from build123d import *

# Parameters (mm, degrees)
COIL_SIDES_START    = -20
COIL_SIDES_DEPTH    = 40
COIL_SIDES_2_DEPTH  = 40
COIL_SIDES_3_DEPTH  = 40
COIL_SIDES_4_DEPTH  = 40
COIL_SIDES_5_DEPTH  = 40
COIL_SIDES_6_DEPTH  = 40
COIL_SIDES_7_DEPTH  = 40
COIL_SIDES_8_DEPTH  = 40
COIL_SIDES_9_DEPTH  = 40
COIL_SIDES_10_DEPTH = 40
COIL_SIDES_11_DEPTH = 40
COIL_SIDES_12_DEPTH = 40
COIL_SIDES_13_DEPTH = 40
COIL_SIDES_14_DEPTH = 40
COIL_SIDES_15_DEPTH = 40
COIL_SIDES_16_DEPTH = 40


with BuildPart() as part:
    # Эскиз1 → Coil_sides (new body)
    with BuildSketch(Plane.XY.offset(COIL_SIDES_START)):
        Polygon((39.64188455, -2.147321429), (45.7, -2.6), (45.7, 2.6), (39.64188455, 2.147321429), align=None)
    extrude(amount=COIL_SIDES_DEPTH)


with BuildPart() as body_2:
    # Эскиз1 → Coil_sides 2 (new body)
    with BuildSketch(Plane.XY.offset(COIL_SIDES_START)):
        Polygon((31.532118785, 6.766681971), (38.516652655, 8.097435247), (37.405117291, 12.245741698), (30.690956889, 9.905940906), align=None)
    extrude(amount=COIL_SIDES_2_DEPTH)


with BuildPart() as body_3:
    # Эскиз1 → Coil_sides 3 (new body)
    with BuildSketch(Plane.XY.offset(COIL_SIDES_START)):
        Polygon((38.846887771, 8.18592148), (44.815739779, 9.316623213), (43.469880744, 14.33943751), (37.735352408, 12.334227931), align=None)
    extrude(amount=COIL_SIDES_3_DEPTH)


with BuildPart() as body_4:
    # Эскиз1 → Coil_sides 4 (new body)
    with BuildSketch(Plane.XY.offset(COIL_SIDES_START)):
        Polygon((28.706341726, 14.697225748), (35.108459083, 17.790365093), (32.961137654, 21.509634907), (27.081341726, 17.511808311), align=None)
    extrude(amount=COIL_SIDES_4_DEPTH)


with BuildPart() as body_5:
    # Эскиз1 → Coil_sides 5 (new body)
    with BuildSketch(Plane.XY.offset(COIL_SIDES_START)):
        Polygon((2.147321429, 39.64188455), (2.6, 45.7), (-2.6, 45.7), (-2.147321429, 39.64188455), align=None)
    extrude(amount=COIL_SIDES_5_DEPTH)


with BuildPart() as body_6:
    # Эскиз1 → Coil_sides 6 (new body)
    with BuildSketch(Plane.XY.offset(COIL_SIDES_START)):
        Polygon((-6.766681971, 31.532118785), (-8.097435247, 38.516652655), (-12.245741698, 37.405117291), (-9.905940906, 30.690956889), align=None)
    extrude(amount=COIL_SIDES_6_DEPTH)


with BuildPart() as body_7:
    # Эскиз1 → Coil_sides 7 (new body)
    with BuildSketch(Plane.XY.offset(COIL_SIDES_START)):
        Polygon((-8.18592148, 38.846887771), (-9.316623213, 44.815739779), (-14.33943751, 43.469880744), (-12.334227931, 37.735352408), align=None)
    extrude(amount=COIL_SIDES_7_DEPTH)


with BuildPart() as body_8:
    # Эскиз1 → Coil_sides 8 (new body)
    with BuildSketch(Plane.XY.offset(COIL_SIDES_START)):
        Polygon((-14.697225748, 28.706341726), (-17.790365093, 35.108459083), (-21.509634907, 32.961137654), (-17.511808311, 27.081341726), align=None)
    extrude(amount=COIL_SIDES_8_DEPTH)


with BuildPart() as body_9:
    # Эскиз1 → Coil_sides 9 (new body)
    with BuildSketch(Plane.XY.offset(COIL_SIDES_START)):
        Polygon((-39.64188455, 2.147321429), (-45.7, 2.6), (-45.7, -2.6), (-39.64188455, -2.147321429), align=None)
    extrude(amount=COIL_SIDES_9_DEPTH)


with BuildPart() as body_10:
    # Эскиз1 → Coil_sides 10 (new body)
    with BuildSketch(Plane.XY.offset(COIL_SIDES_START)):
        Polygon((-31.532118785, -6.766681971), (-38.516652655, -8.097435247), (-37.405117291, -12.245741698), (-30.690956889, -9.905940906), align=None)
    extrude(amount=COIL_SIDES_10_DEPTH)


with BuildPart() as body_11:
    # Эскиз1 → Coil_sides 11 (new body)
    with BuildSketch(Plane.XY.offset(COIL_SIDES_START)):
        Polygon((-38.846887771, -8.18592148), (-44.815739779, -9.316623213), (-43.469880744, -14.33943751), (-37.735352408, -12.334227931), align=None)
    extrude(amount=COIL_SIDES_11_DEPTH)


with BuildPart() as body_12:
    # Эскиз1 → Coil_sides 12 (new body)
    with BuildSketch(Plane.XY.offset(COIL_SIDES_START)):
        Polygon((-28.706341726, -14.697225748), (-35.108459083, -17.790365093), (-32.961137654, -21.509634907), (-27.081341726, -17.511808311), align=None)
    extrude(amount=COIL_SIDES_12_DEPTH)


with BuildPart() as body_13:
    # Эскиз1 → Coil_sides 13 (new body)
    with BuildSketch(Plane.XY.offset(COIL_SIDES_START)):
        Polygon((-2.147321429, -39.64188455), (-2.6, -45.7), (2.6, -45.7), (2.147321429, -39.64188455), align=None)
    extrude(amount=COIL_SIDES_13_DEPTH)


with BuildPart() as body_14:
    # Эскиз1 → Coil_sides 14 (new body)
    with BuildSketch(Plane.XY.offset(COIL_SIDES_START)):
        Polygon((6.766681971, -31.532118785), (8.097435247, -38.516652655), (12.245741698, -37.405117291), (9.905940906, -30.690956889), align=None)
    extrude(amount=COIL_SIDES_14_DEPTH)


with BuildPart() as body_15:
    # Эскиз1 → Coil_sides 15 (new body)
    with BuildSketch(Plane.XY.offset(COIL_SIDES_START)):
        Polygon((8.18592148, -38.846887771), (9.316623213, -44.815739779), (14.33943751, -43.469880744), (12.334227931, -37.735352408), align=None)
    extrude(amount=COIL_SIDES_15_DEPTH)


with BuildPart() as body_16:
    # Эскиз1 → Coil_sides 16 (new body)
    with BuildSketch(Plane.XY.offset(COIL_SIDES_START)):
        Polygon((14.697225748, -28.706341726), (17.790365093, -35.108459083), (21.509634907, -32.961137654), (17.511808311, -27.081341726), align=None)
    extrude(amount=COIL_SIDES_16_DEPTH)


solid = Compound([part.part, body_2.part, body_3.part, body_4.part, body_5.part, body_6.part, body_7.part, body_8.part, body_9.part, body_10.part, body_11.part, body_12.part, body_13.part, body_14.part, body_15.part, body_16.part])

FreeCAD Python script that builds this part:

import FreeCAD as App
import Part
import Sketcher
from FreeCAD import Vector
Q = App.Units.Quantity


def add_polygon(sketch, points):
    """Adds a closed chain of lines whose ends are joined by coincident constraints."""
    first, n = sketch.GeometryCount, len(points)
    for a, b in zip(points, points[1:] + points[:1]):
        sketch.addGeometry(Part.LineSegment(App.Vector(*a, 0), App.Vector(*b, 0)), False)
    for i in range(n):
        sketch.addConstraint(Sketcher.Constraint("Coincident", first + i, 2, first + (i + 1) % n, 1))

doc = App.newDocument("Part")
params = doc.addObject("Spreadsheet::Sheet", "Params")
for row, (alias, value) in enumerate([
    ("sketch1_height", "5.2 mm"),
    ("pad1_length", "40 mm"),
    ("sketch2_length", "3.25 mm"),
    ("pad2_length", "40 mm"),
    ("sketch3_length", "5.2 mm"),
    ("pad3_length", "40 mm"),
    ("sketch4_length", "3.25 mm"),
    ("pad4_length", "40 mm"),
    ("sketch5_width", "5.2 mm"),
    ("pad5_length", "40 mm"),
    ("sketch6_length", "3.25 mm"),
    ("pad6_length", "40 mm"),
    ("sketch7_length", "5.2 mm"),
    ("pad7_length", "40 mm"),
    ("sketch8_length", "3.25 mm"),
    ("pad8_length", "40 mm"),
    ("sketch9_height", "5.2 mm"),
    ("pad9_length", "40 mm"),
    ("sketch10_length", "3.25 mm"),
    ("pad10_length", "40 mm"),
    ("sketch11_length", "5.2 mm"),
    ("pad11_length", "40 mm"),
    ("sketch12_length", "3.25 mm"),
    ("pad12_length", "40 mm"),
    ("sketch13_width", "5.2 mm"),
    ("pad13_length", "40 mm"),
    ("sketch14_length", "3.25 mm"),
    ("pad14_length", "40 mm"),
    ("sketch15_length", "5.2 mm"),
    ("pad15_length", "40 mm"),
    ("sketch16_length", "3.25 mm"),
    ("pad16_length", "40 mm"),
], start=1):
    params.set(f"A{row}", alias)
    params.set(f"B{row}", "=" + value)
    params.setAlias(f"B{row}", alias)

body = doc.addObject("PartDesign::Body", "Body")

sketch1 = doc.addObject("Sketcher::SketchObject", "Sketch")
body.addObject(sketch1)
sketch1.AttachmentSupport = (doc.XY_Plane, [""])
sketch1.MapMode = "FlatFace"
sketch1.AttachmentOffset = App.Placement(Vector(0, 0, -20), App.Rotation())
add_polygon(sketch1, [(39.6, -2.1), (45.7, -2.6), (45.7, 2.6), (39.6, 2.1)])
sketch1.addConstraint([
    Sketcher.Constraint("Vertical", 1),
    Sketcher.Constraint("Vertical", 3),
    Sketcher.Constraint("Equal", 0, 2),
    Sketcher.Constraint("DistanceY", 1, 1, 1, 2, 5.2),
    Sketcher.Constraint("DistanceX", -1, 1, 0, 2, 45.7),
    Sketcher.Constraint("DistanceY", 0, 2, -1, 1, 2.6),
    Sketcher.Constraint("DistanceY", 3, 2, 3, 1, 4.294643),
    Sketcher.Constraint("Distance", 0, 6.075005),
])
sketch1.setExpression("Constraints[7]", "Params.sketch1_height")
pad1 = doc.addObject("PartDesign::Pad", "Pad")
body.addObject(pad1)
pad1.Profile = sketch1
pad1.setExpression("Length", "Params.pad1_length")
body2 = doc.addObject("PartDesign::Body", "Body001")

sketch2 = doc.addObject("Sketcher::SketchObject", "Sketch001")
body2.addObject(sketch2)
sketch2.AttachmentSupport = (doc.getObject("XY_Plane001"), [""])
sketch2.MapMode = "FlatFace"
sketch2.AttachmentOffset = App.Placement(Vector(0, 0, -20), App.Rotation())
add_polygon(sketch2, [(31.5, 6.8), (38.5, 8.1), (37.4, 12.2), (30.7, 9.9)])
sketch2.addConstraint([
    Sketcher.Constraint("Parallel", 1, 3),
    Sketcher.Constraint("Equal", 0, 2),
    Sketcher.Constraint("Angle", 1, Q("105 deg")),
    Sketcher.Constraint("Distance", 3, 3.25),
    Sketcher.Constraint("DistanceX", 3, 2, 1, 2, 5.872999),
    Sketcher.Constraint("DistanceY", 2, 2, 1, 2, 2.339801),
    Sketcher.Constraint("DistanceY", -1, 1, 1, 2, 12.245742),
    Sketcher.Constraint("DistanceX", -1, 1, 3, 2, 31.532119),
])
sketch2.setExpression("Constraints[7]", "Params.sketch2_length")
pad2 = doc.addObject("PartDesign::Pad", "Pad001")
body2.addObject(pad2)
pad2.Profile = sketch2
pad2.setExpression("Length", "Params.pad2_length")
body3 = doc.addObject("PartDesign::Body", "Body002")

sketch3 = doc.addObject("Sketcher::SketchObject", "Sketch002")
body3.addObject(sketch3)
sketch3.AttachmentSupport = (doc.getObject("XY_Plane002"), [""])
sketch3.MapMode = "FlatFace"
sketch3.AttachmentOffset = App.Placement(Vector(0, 0, -20), App.Rotation())
add_polygon(sketch3, [(38.8, 8.2), (44.8, 9.3), (43.5, 14.3), (37.7, 12.3)])
sketch3.addConstraint([
    Sketcher.Constraint("Parallel", 1, 3),
    Sketcher.Constraint("Equal", 0, 2),
    Sketcher.Constraint("Angle", 1, Q("105 deg")),
    Sketcher.Constraint("Distance", 1, 5.2),
    Sketcher.Constraint("DistanceY", 3, 2, 0, 2, 1.130702),
    Sketcher.Constraint("DistanceX", -1, 1, 0, 2, 44.81574),
    Sketcher.Constraint("DistanceY", -1, 1, 3, 2, 8.185921),
    Sketcher.Constraint("DistanceX", 2, 2, 1, 2, 5.734528),
])
sketch3.setExpression("Constraints[7]", "Params.sketch3_length")
pad3 = doc.addObject("PartDesign::Pad", "Pad002")
body3.addObject(pad3)
pad3.Profile = sketch3
pad3.setExpression("Length", "Params.pad3_length")
body4 = doc.addObject("PartDesign::Body", "Body003")

sketch4 = doc.addObject("Sketcher::SketchObject", "Sketch003")
body4.addObject(sketch4)
sketch4.AttachmentSupport = (doc.getObject("XY_Plane003"), [""])
sketch4.MapMode = "FlatFace"
sketch4.AttachmentOffset = App.Placement(Vector(0, 0, -20), App.Rotation())
add_polygon(sketch4, [(28.7, 14.7), (35.1, 17.8), (33, 21.5), (27.1, 17.5)])
sketch4.addConstraint([
    Sketcher.Constraint("Parallel", 1, 3),
    Sketcher.Constraint("Equal", 0, 2),
    Sketcher.Constraint("Angle", 1, Q("120 deg")),
    Sketcher.Constraint("Distance", 3, 3.25),
    Sketcher.Constraint("DistanceX", -1, 1, 0, 2, 35.108459),
    Sketcher.Constraint("DistanceX", -1, 1, 2, 2, 27.081342),
    Sketcher.Constraint("DistanceY", -1, 1, 2, 2, 17.511808),
    Sketcher.Constraint("DistanceX", 1, 2, 0, 2, 2.147321),
])
sketch4.setExpression("Constraints[7]", "Params.sketch4_length")
pad4 = doc.addObject("PartDesign::Pad", "Pad003")
body4.addObject(pad4)
pad4.Profile = sketch4
pad4.setExpression("Length", "Params.pad4_length")
body5 = doc.addObject("PartDesign::Body", "Body004")

sketch5 = doc.addObject("Sketcher::SketchObject", "Sketch004")
body5.addObject(sketch5)
sketch5.AttachmentSupport = (doc.getObject("XY_Plane004"), [""])
sketch5.MapMode = "FlatFace"
sketch5.AttachmentOffset = App.Placement(Vector(0, 0, -20), App.Rotation())
add_polygon(sketch5, [(2.1, 39.6), (2.6, 45.7), (-2.6, 45.7), (-2.1, 39.6)])
sketch5.addConstraint([
    Sketcher.Constraint("Horizontal", 1),
    Sketcher.Constraint("Horizontal", 3),
    Sketcher.Constraint("Equal", 0, 2),
    Sketcher.Constraint("DistanceX", 1, 2, 1, 1, 5.2),
    Sketcher.Constraint("DistanceX", -1, 1, 0, 2, 2.6),
    Sketcher.Constraint("DistanceY", -1, 1, 0, 2, 45.7),
    Sketcher.Constraint("DistanceX", 3, 1, 3, 2, 4.294643),
    Sketcher.Constraint("Distance", 0, 6.075005),
])
sketch5.setExpression("Constraints[7]", "Params.sketch5_width")
pad5 = doc.addObject("PartDesign::Pad", "Pad004")
body5.addObject(pad5)
pad5.Profile = sketch5
pad5.setExpression("Length", "Params.pad5_length")
body6 = doc.addObject("PartDesign::Body", "Body005")

sketch6 = doc.addObject("Sketcher::SketchObject", "Sketch005")
body6.addObject(sketch6)
sketch6.AttachmentSupport = (doc.getObject("XY_Plane005"), [""])
sketch6.MapMode = "FlatFace"
sketch6.AttachmentOffset = App.Placement(Vector(0, 0, -20), App.Rotation())
add_polygon(sketch6, [(-6.8, 31.5), (-8.1, 38.5), (-12.2, 37.4), (-9.9, 30.7)])
sketch6.addConstraint([
    Sketcher.Constraint("Parallel", 1, 3),
    Sketcher.Constraint("Equal", 0, 2),
    Sketcher.Constraint("Angle", 1, Q("-165 deg")),
    Sketcher.Constraint("Distance", 3, 3.25),
    Sketcher.Constraint("DistanceY", 3, 2, 1, 2, 5.872999),
    Sketcher.Constraint("DistanceX", 1, 2, 2, 2, 2.339801),
    Sketcher.Constraint("DistanceX", 1, 2, -1, 1, 12.245742),
    Sketcher.Constraint("DistanceY", -1, 1, 3, 2, 31.532119),
])
sketch6.setExpression("Constraints[7]", "Params.sketch6_length")
pad6 = doc.addObject("PartDesign::Pad", "Pad005")
body6.addObject(pad6)
pad6.Profile = sketch6
pad6.setExpression("Length", "Params.pad6_length")
body7 = doc.addObject("PartDesign::Body", "Body006")

sketch7 = doc.addObject("Sketcher::SketchObject", "Sketch006")
body7.addObject(sketch7)
sketch7.AttachmentSupport = (doc.getObject("XY_Plane006"), [""])
sketch7.MapMode = "FlatFace"
sketch7.AttachmentOffset = App.Placement(Vector(0, 0, -20), App.Rotation())
add_polygon(sketch7, [(-8.2, 38.8), (-9.3, 44.8), (-14.3, 43.5), (-12.3, 37.7)])
sketch7.addConstraint([
    Sketcher.Constraint("Parallel", 1, 3),
    Sketcher.Constraint("Equal", 0, 2),
    Sketcher.Constraint("Angle", 1, Q("-165 deg")),
    Sketcher.Constraint("Distance", 1, 5.2),
    Sketcher.Constraint("DistanceX", 0, 2, 3, 2, 1.130702),
    Sketcher.Constraint("DistanceY", -1, 1, 0, 2, 44.81574),
    Sketcher.Constraint("DistanceX", 3, 2, -1, 1, 8.185921),
    Sketcher.Constraint("DistanceX", 1, 2, 2, 2, 2.00521),
])
sketch7.setExpression("Constraints[7]", "Params.sketch7_length")
pad7 = doc.addObject("PartDesign::Pad", "Pad006")
body7.addObject(pad7)
pad7.Profile = sketch7
pad7.setExpression("Length", "Params.pad7_length")
body8 = doc.addObject("PartDesign::Body", "Body007")

sketch8 = doc.addObject("Sketcher::SketchObject", "Sketch007")
body8.addObject(sketch8)
sketch8.AttachmentSupport = (doc.getObject("XY_Plane007"), [""])
sketch8.MapMode = "FlatFace"
sketch8.AttachmentOffset = App.Placement(Vector(0, 0, -20), App.Rotation())
add_polygon(sketch8, [(-14.7, 28.7), (-17.8, 35.1), (-21.5, 33), (-17.5, 27.1)])
sketch8.addConstraint([
    Sketcher.Constraint("Parallel", 1, 3),
    Sketcher.Constraint("Equal", 0, 2),
    Sketcher.Constraint("Angle", 1, Q("-150 deg")),
    Sketcher.Constraint("Distance", 3, 3.25),
    Sketcher.Constraint("DistanceY", -1, 1, 0, 2, 35.108459),
    Sketcher.Constraint("DistanceX", 2, 2, -1, 1, 17.511808),
    Sketcher.Constraint("DistanceY", -1, 1, 2, 2, 27.081342),
    Sketcher.Constraint("DistanceX", 1, 2, 0, 2, 3.71927),
])
sketch8.setExpression("Constraints[7]", "Params.sketch8_length")
pad8 = doc.addObject("PartDesign::Pad", "Pad007")
body8.addObject(pad8)
pad8.Profile = sketch8
pad8.setExpression("Length", "Params.pad8_length")
body9 = doc.addObject("PartDesign::Body", "Body008")

sketch9 = doc.addObject("Sketcher::SketchObject", "Sketch008")
body9.addObject(sketch9)
sketch9.AttachmentSupport = (doc.getObject("XY_Plane008"), [""])
sketch9.MapMode = "FlatFace"
sketch9.AttachmentOffset = App.Placement(Vector(0, 0, -20), App.Rotation())
add_polygon(sketch9, [(-39.6, 2.1), (-45.7, 2.6), (-45.7, -2.6), (-39.6, -2.1)])
sketch9.addConstraint([
    Sketcher.Constraint("Vertical", 1),
    Sketcher.Constraint("Vertical", 3),
    Sketcher.Constraint("Equal", 0, 2),
    Sketcher.Constraint("DistanceY", 1, 2, 1, 1, 5.2),
    Sketcher.Constraint("DistanceX", 0, 2, -1, 1, 45.7),
    Sketcher.Constraint("DistanceY", -1, 1, 0, 2, 2.6),
    Sketcher.Constraint("DistanceY", 3, 1, 3, 2, 4.294643),
    Sketcher.Constraint("Distance", 0, 6.075005),
])
sketch9.setExpression("Constraints[7]", "Params.sketch9_height")
pad9 = doc.addObject("PartDesign::Pad", "Pad008")
body9.addObject(pad9)
pad9.Profile = sketch9
pad9.setExpression("Length", "Params.pad9_length")
body10 = doc.addObject("PartDesign::Body", "Body009")

sketch10 = doc.addObject("Sketcher::SketchObject", "Sketch009")
body10.addObject(sketch10)
sketch10.AttachmentSupport = (doc.getObject("XY_Plane009"), [""])
sketch10.MapMode = "FlatFace"
sketch10.AttachmentOffset = App.Placement(Vector(0, 0, -20), App.Rotation())
add_polygon(sketch10, [(-31.5, -6.8), (-38.5, -8.1), (-37.4, -12.2), (-30.7, -9.9)])
sketch10.addConstraint([
    Sketcher.Constraint("Parallel", 1, 3),
    Sketcher.Constraint("Equal", 0, 2),
    Sketcher.Constraint("Angle", 1, Q("-75 deg")),
    Sketcher.Constraint("Distance", 3, 3.25),
    Sketcher.Constraint("DistanceX", 1, 2, 3, 2, 5.872999),
    Sketcher.Constraint("DistanceY", 1, 2, 2, 2, 2.339801),
    Sketcher.Constraint("DistanceY", 1, 2, -1, 1, 12.245742),
    Sketcher.Constraint("DistanceX", 3, 2, -1, 1, 31.532119),
])
sketch10.setExpression("Constraints[7]", "Params.sketch10_length")
pad10 = doc.addObject("PartDesign::Pad", "Pad009")
body10.addObject(pad10)
pad10.Profile = sketch10
pad10.setExpression("Length", "Params.pad10_length")
body11 = doc.addObject("PartDesign::Body", "Body010")

sketch11 = doc.addObject("Sketcher::SketchObject", "Sketch010")
body11.addObject(sketch11)
sketch11.AttachmentSupport = (doc.getObject("XY_Plane010"), [""])
sketch11.MapMode = "FlatFace"
sketch11.AttachmentOffset = App.Placement(Vector(0, 0, -20), App.Rotation())
add_polygon(sketch11, [(-38.8, -8.2), (-44.8, -9.3), (-43.5, -14.3), (-37.7, -12.3)])
sketch11.addConstraint([
    Sketcher.Constraint("Parallel", 1, 3),
    Sketcher.Constraint("Equal", 0, 2),
    Sketcher.Constraint("Angle", 1, Q("-75 deg")),
    Sketcher.Constraint("Distance", 1, 5.2),
    Sketcher.Constraint("DistanceY", 0, 2, 3, 2, 1.130702),
    Sketcher.Constraint("DistanceX", 0, 2, -1, 1, 44.81574),
    Sketcher.Constraint("DistanceY", 3, 2, -1, 1, 8.185921),
    Sketcher.Constraint("DistanceX", 1, 2, 2, 2, 5.734528),
])
sketch11.setExpression("Constraints[7]", "Params.sketch11_length")
pad11 = doc.addObject("PartDesign::Pad", "Pad010")
body11.addObject(pad11)
pad11.Profile = sketch11
pad11.setExpression("Length", "Params.pad11_length")
body12 = doc.addObject("PartDesign::Body", "Body011")

sketch12 = doc.addObject("Sketcher::SketchObject", "Sketch011")
body12.addObject(sketch12)
sketch12.AttachmentSupport = (doc.getObject("XY_Plane011"), [""])
sketch12.MapMode = "FlatFace"
sketch12.AttachmentOffset = App.Placement(Vector(0, 0, -20), App.Rotation())
add_polygon(sketch12, [(-28.7, -14.7), (-35.1, -17.8), (-33, -21.5), (-27.1, -17.5)])
sketch12.addConstraint([
    Sketcher.Constraint("Parallel", 1, 3),
    Sketcher.Constraint("Equal", 0, 2),
    Sketcher.Constraint("Angle", 1, Q("-60 deg")),
    Sketcher.Constraint("Distance", 3, 3.25),
    Sketcher.Constraint("DistanceX", 0, 2, -1, 1, 35.108459),
    Sketcher.Constraint("DistanceX", 2, 2, -1, 1, 27.081342),
    Sketcher.Constraint("DistanceY", 2, 2, -1, 1, 17.511808),
    Sketcher.Constraint("DistanceX", 0, 2, 1, 2, 2.147321),
])
sketch12.setExpression("Constraints[7]", "Params.sketch12_length")
pad12 = doc.addObject("PartDesign::Pad", "Pad011")
body12.addObject(pad12)
pad12.Profile = sketch12
pad12.setExpression("Length", "Params.pad12_length")
body13 = doc.addObject("PartDesign::Body", "Body012")

sketch13 = doc.addObject("Sketcher::SketchObject", "Sketch012")
body13.addObject(sketch13)
sketch13.AttachmentSupport = (doc.getObject("XY_Plane012"), [""])
sketch13.MapMode = "FlatFace"
sketch13.AttachmentOffset = App.Placement(Vector(0, 0, -20), App.Rotation())
add_polygon(sketch13, [(-2.1, -39.6), (-2.6, -45.7), (2.6, -45.7), (2.1, -39.6)])
sketch13.addConstraint([
    Sketcher.Constraint("Horizontal", 1),
    Sketcher.Constraint("Horizontal", 3),
    Sketcher.Constraint("Equal", 0, 2),
    Sketcher.Constraint("DistanceX", 1, 1, 1, 2, 5.2),
    Sketcher.Constraint("DistanceX", 0, 2, -1, 1, 2.6),
    Sketcher.Constraint("DistanceY", 0, 2, -1, 1, 45.7),
    Sketcher.Constraint("DistanceX", 3, 2, 3, 1, 4.294643),
    Sketcher.Constraint("Distance", 0, 6.075005),
])
sketch13.setExpression("Constraints[7]", "Params.sketch13_width")
pad13 = doc.addObject("PartDesign::Pad", "Pad012")
body13.addObject(pad13)
pad13.Profile = sketch13
pad13.setExpression("Length", "Params.pad13_length")
body14 = doc.addObject("PartDesign::Body", "Body013")

sketch14 = doc.addObject("Sketcher::SketchObject", "Sketch013")
body14.addObject(sketch14)
sketch14.AttachmentSupport = (doc.getObject("XY_Plane013"), [""])
sketch14.MapMode = "FlatFace"
sketch14.AttachmentOffset = App.Placement(Vector(0, 0, -20), App.Rotation())
add_polygon(sketch14, [(6.8, -31.5), (8.1, -38.5), (12.2, -37.4), (9.9, -30.7)])
sketch14.addConstraint([
    Sketcher.Constraint("Parallel", 1, 3),
    Sketcher.Constraint("Equal", 0, 2),
    Sketcher.Constraint("Angle", 1, Q("15 deg")),
    Sketcher.Constraint("Distance", 3, 3.25),
    Sketcher.Constraint("DistanceY", 1, 2, 3, 2, 5.872999),
    Sketcher.Constraint("DistanceX", 2, 2, 1, 2, 2.339801),
    Sketcher.Constraint("DistanceX", -1, 1, 1, 2, 12.245742),
    Sketcher.Constraint("DistanceY", 3, 2, -1, 1, 31.532119),
])
sketch14.setExpression("Constraints[7]", "Params.sketch14_length")
pad14 = doc.addObject("PartDesign::Pad", "Pad013")
body14.addObject(pad14)
pad14.Profile = sketch14
pad14.setExpression("Length", "Params.pad14_length")
body15 = doc.addObject("PartDesign::Body", "Body014")

sketch15 = doc.addObject("Sketcher::SketchObject", "Sketch014")
body15.addObject(sketch15)
sketch15.AttachmentSupport = (doc.getObject("XY_Plane014"), [""])
sketch15.MapMode = "FlatFace"
sketch15.AttachmentOffset = App.Placement(Vector(0, 0, -20), App.Rotation())
add_polygon(sketch15, [(8.2, -38.8), (9.3, -44.8), (14.3, -43.5), (12.3, -37.7)])
sketch15.addConstraint([
    Sketcher.Constraint("Parallel", 1, 3),
    Sketcher.Constraint("Equal", 0, 2),
    Sketcher.Constraint("Angle", 1, Q("15 deg")),
    Sketcher.Constraint("Distance", 1, 5.2),
    Sketcher.Constraint("DistanceX", 3, 2, 0, 2, 1.130702),
    Sketcher.Constraint("DistanceY", 0, 2, -1, 1, 44.81574),
    Sketcher.Constraint("DistanceX", -1, 1, 3, 2, 8.185921),
    Sketcher.Constraint("DistanceX", 2, 2, 1, 2, 2.00521),
])
sketch15.setExpression("Constraints[7]", "Params.sketch15_length")
pad15 = doc.addObject("PartDesign::Pad", "Pad014")
body15.addObject(pad15)
pad15.Profile = sketch15
pad15.setExpression("Length", "Params.pad15_length")
body16 = doc.addObject("PartDesign::Body", "Body015")

sketch16 = doc.addObject("Sketcher::SketchObject", "Sketch015")
body16.addObject(sketch16)
sketch16.AttachmentSupport = (doc.getObject("XY_Plane015"), [""])
sketch16.MapMode = "FlatFace"
sketch16.AttachmentOffset = App.Placement(Vector(0, 0, -20), App.Rotation())
add_polygon(sketch16, [(14.7, -28.7), (17.8, -35.1), (21.5, -33), (17.5, -27.1)])
sketch16.addConstraint([
    Sketcher.Constraint("Parallel", 1, 3),
    Sketcher.Constraint("Equal", 0, 2),
    Sketcher.Constraint("Angle", 1, Q("30 deg")),
    Sketcher.Constraint("Distance", 3, 3.25),
    Sketcher.Constraint("DistanceY", 0, 2, -1, 1, 35.108459),
    Sketcher.Constraint("DistanceX", -1, 1, 2, 2, 17.511808),
    Sketcher.Constraint("DistanceY", 2, 2, -1, 1, 27.081342),
    Sketcher.Constraint("DistanceX", 0, 2, 1, 2, 3.71927),
])
sketch16.setExpression("Constraints[7]", "Params.sketch16_length")
pad16 = doc.addObject("PartDesign::Pad", "Pad015")
body16.addObject(pad16)
pad16.Profile = sketch16
pad16.setExpression("Length", "Params.pad16_length")

doc.recompute()
